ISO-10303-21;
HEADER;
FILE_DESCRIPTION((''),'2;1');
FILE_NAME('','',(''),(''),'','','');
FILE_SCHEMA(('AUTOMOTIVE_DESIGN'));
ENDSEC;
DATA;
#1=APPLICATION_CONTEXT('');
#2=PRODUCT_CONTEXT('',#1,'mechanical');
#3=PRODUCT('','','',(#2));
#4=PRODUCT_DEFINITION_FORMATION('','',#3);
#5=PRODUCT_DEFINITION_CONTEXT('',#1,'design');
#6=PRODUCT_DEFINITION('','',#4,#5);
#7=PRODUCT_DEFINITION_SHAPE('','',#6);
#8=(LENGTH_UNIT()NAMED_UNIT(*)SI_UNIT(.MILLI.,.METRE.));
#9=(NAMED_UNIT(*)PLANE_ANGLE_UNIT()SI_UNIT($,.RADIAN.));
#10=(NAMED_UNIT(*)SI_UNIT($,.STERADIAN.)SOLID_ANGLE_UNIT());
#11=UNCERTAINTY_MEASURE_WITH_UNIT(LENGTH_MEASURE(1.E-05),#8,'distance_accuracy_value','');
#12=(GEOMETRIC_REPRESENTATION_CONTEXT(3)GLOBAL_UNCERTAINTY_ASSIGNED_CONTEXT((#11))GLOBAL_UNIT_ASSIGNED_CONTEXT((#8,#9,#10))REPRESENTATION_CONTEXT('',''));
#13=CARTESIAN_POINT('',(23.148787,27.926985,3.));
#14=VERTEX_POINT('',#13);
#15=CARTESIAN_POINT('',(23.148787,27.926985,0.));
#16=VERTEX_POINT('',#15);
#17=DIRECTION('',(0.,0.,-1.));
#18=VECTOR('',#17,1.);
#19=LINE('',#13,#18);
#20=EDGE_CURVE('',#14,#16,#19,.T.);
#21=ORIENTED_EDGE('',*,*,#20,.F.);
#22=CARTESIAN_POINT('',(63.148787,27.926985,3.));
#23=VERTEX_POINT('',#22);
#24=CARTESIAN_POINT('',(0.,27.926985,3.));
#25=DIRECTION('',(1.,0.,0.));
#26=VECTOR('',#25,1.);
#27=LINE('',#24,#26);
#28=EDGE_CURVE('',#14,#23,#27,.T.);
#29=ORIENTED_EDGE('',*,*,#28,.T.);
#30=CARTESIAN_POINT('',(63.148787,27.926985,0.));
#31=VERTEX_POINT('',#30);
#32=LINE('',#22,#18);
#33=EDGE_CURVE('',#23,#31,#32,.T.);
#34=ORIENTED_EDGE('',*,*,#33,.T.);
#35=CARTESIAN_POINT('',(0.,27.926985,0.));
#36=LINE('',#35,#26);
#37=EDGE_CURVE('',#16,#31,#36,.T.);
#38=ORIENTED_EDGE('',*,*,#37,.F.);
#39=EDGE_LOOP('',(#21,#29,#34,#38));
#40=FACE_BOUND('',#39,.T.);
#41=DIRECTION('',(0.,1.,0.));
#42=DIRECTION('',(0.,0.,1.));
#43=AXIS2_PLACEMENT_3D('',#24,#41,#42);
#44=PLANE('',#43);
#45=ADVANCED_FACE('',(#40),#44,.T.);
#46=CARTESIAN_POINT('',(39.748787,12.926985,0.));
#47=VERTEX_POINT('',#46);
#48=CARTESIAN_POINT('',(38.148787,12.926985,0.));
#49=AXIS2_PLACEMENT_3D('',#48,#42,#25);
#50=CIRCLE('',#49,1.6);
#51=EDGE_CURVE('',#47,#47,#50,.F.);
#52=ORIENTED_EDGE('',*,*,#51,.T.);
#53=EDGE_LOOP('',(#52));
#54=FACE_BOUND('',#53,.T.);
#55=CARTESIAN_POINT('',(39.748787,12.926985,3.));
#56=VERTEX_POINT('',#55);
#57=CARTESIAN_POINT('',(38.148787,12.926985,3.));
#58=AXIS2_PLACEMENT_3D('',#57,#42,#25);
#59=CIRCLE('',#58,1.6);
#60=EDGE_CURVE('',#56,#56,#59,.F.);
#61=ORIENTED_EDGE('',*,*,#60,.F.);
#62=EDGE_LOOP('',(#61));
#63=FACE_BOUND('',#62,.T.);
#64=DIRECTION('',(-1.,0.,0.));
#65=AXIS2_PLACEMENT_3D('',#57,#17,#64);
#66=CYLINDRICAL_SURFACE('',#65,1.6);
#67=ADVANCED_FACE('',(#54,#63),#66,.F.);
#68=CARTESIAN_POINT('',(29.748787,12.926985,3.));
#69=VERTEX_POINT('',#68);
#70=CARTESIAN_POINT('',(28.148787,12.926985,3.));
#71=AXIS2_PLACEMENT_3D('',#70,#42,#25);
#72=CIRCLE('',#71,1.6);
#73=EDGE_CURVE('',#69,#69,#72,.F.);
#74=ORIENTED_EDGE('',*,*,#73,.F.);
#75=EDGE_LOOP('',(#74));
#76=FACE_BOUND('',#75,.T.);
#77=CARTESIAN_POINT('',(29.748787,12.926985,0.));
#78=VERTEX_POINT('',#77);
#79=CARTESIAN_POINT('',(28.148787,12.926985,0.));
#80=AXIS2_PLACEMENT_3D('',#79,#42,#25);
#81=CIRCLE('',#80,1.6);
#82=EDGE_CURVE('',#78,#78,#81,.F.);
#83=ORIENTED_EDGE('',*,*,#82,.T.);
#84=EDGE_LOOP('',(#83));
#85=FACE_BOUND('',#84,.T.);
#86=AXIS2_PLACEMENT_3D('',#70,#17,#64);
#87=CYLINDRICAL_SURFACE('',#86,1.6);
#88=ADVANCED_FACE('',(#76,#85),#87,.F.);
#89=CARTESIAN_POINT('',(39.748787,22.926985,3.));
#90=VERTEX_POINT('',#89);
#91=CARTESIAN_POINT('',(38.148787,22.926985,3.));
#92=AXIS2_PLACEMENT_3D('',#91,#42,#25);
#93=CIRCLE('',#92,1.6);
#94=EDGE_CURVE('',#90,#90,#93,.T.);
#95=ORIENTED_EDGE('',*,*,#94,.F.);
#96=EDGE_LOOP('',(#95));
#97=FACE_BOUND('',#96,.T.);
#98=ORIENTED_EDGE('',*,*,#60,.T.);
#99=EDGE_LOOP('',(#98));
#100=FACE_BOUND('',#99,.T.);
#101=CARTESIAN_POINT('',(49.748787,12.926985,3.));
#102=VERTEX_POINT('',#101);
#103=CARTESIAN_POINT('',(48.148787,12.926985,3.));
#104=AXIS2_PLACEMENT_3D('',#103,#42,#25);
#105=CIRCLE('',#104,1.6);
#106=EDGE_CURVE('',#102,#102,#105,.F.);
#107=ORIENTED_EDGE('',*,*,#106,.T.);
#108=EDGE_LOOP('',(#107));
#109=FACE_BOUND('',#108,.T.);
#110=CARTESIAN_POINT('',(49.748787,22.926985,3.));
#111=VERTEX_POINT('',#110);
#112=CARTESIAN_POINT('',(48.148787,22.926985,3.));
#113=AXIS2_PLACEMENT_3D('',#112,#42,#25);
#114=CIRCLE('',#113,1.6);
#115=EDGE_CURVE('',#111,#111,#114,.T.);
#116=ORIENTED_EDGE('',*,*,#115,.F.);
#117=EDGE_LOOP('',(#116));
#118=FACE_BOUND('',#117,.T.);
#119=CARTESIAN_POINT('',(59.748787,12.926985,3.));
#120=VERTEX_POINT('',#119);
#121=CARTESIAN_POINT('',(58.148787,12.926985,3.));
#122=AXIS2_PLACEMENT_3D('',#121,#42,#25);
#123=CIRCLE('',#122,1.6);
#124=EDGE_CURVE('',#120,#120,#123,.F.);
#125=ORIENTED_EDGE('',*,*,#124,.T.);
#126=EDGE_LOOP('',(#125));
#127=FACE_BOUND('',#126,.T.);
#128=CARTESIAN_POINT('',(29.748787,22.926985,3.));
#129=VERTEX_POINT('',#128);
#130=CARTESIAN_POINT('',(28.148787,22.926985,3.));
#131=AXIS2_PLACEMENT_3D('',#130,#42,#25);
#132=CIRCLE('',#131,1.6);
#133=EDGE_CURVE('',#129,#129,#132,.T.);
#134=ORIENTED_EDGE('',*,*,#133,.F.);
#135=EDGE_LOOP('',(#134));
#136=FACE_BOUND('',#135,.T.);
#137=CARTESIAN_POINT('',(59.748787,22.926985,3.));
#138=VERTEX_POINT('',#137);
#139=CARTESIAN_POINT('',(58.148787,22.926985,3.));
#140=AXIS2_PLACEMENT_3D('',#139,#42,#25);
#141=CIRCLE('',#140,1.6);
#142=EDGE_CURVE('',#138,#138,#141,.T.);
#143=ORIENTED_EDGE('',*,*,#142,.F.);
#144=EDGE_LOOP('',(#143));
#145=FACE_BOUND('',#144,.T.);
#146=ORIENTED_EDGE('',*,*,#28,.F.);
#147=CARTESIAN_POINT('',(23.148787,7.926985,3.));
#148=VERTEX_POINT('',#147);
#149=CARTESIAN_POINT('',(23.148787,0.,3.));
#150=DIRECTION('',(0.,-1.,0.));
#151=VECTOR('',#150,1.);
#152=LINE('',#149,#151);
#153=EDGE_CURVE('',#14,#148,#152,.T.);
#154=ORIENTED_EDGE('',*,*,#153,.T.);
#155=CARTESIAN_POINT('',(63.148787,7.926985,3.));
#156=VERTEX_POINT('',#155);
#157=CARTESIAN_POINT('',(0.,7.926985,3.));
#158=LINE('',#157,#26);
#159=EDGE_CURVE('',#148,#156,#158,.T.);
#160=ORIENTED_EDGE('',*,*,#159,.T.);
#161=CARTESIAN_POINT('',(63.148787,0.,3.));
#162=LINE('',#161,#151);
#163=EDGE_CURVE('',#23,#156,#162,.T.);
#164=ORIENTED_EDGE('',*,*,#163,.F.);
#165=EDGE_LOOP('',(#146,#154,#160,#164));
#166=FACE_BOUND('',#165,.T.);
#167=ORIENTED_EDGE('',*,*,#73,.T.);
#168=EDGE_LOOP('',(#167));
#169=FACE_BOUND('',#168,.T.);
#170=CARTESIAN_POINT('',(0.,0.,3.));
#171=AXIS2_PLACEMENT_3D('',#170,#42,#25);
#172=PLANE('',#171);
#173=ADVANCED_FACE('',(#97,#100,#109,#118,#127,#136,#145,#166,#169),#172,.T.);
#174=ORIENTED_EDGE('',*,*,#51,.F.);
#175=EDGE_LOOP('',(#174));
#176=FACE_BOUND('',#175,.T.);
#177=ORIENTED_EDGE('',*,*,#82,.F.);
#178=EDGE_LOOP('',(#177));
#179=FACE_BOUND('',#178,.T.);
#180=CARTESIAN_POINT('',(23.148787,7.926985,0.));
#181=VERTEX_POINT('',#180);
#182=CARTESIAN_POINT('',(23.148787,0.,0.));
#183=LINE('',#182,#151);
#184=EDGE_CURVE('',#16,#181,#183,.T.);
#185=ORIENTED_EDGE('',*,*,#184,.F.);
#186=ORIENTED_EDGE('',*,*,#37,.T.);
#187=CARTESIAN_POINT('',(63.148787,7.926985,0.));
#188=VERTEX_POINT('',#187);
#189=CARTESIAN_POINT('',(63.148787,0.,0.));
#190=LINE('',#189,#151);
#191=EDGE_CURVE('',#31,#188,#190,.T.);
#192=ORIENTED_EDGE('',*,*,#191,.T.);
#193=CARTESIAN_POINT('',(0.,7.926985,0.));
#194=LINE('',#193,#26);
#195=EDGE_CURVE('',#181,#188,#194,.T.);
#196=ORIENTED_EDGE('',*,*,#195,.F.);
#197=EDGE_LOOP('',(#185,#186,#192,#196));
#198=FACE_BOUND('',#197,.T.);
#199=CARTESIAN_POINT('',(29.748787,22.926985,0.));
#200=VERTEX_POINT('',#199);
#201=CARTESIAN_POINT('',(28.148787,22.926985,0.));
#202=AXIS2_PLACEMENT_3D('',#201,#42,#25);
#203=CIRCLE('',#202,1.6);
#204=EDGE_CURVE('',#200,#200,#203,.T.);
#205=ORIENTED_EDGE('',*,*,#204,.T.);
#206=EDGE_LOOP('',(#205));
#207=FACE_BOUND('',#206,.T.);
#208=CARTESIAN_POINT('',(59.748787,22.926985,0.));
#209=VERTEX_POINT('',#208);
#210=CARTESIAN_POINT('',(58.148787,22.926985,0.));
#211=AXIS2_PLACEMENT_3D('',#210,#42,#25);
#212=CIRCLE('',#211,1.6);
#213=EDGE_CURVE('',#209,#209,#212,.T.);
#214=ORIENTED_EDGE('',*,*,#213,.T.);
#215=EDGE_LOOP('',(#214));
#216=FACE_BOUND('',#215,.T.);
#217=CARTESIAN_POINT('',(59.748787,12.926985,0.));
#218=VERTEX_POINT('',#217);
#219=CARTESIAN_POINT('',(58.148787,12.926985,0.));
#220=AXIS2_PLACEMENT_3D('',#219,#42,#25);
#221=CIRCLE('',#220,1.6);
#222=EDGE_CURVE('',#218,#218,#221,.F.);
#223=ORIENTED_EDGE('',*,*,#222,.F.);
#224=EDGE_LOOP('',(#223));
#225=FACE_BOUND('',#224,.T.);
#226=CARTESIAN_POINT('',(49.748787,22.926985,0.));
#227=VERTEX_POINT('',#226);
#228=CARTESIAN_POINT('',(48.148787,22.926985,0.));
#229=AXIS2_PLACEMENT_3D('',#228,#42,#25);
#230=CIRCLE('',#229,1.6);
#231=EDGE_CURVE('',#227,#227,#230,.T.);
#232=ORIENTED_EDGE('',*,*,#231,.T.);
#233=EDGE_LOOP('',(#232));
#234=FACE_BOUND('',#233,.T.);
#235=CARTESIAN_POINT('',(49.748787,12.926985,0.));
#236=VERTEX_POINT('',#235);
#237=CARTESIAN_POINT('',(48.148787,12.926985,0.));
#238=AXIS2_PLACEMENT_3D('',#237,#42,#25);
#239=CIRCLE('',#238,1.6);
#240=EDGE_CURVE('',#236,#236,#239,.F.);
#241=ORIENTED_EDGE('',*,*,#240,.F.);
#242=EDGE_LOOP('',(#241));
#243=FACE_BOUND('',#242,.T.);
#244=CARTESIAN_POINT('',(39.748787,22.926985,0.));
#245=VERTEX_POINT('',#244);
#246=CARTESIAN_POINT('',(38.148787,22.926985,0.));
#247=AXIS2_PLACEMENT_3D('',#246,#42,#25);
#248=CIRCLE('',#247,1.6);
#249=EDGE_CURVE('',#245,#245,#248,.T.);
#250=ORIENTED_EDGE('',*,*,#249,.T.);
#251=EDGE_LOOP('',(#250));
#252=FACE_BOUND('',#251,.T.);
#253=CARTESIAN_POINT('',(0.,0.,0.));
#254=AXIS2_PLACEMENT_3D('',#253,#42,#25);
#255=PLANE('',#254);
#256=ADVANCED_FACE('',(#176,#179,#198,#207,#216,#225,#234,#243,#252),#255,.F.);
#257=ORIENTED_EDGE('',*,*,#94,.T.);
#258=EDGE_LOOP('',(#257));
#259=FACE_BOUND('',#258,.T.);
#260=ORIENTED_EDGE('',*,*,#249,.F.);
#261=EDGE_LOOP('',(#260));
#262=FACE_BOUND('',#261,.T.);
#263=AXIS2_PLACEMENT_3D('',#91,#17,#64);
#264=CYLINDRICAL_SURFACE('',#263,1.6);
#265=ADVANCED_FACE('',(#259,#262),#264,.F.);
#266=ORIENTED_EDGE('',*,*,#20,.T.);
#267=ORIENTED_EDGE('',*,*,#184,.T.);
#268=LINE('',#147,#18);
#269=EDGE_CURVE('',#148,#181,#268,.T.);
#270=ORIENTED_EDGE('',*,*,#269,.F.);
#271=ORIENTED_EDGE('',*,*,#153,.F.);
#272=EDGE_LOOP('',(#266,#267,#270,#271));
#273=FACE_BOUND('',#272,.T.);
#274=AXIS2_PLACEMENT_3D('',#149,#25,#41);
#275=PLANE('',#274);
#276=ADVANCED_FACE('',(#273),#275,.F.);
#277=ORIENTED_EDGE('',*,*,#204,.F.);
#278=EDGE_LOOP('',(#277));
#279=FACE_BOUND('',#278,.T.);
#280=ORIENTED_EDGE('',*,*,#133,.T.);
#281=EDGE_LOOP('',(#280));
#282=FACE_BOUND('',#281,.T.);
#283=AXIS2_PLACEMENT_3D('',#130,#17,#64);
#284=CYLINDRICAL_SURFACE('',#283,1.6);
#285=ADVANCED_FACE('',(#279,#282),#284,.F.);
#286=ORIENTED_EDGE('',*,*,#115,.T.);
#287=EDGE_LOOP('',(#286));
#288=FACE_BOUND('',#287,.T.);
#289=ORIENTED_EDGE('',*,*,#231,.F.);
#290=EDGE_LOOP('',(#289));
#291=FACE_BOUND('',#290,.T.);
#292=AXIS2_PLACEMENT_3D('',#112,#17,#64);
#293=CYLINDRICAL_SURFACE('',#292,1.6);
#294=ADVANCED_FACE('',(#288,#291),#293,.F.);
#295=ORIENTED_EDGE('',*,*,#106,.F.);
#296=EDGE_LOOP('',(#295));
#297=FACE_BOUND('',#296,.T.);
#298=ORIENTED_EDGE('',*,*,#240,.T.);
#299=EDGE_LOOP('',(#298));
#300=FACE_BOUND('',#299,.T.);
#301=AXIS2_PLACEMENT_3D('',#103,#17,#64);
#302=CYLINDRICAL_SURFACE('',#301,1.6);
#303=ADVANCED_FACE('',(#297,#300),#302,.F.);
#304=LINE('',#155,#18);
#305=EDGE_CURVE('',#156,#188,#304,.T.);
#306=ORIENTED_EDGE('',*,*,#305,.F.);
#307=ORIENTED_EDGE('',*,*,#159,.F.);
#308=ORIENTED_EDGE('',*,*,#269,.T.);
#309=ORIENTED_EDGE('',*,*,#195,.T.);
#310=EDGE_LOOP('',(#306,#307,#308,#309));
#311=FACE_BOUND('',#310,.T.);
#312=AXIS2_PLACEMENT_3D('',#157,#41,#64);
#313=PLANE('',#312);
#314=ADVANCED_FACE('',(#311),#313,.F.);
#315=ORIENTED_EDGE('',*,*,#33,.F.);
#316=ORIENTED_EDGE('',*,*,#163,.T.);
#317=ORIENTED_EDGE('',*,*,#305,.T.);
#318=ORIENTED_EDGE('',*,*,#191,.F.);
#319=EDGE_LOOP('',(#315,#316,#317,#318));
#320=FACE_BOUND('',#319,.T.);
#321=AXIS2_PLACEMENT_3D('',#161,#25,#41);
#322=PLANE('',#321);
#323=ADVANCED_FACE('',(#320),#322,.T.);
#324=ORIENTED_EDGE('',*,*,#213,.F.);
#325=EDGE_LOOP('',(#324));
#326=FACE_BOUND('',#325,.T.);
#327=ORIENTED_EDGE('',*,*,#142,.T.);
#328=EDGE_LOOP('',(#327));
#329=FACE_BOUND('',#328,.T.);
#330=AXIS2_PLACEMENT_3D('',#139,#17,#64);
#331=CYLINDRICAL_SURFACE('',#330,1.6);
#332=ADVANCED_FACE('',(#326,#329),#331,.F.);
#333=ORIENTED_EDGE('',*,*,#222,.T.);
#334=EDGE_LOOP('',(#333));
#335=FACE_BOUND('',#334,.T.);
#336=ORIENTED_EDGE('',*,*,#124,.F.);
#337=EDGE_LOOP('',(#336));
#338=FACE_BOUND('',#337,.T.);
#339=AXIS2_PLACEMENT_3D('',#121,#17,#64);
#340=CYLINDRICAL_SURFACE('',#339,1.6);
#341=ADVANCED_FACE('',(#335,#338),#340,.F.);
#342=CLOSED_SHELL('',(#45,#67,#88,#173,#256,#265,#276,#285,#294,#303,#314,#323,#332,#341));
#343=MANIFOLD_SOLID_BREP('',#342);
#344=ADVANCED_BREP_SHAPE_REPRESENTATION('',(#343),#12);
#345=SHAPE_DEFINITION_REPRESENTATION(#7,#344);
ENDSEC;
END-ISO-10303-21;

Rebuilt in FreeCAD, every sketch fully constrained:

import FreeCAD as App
import Part
import Sketcher
Q = App.Units.Quantity


def add_polygon(sketch, points):
    """Adds a closed chain of lines whose ends are joined by coincident constraints."""
    first, n = sketch.GeometryCount, len(points)
    for a, b in zip(points, points[1:] + points[:1]):
        sketch.addGeometry(Part.LineSegment(App.Vector(*a, 0), App.Vector(*b, 0)), False)
    for i in range(n):
        sketch.addConstraint(Sketcher.Constraint("Coincident", first + i, 2, first + (i + 1) % n, 1))

doc = App.newDocument("Part")
params = doc.addObject("Spreadsheet::Sheet", "Params")
for row, (alias, value) in enumerate([
    ("sketch1_diameter", "3.2 mm"),
    ("sketch1_width", "40 mm"),
    ("sketch1_height", "20 mm"),
    ("pad1_length", "3 mm"),
], start=1):
    params.set(f"A{row}", alias)
    params.set(f"B{row}", "=" + value)
    params.setAlias(f"B{row}", alias)

body = doc.addObject("PartDesign::Body", "Body")

sketch1 = body.newObject("Sketcher::SketchObject", "Sketch")
sketch1.AttachmentSupport = (doc.getObject("XY_Plane"), [""])
sketch1.MapMode = "FlatFace"
add_polygon(sketch1, [(23.1, 27.9), (23.1, 7.9), (63.1, 7.9), (63.1, 27.9)])
sketch1.addGeometry(Part.Circle(App.Vector(28.1, 12.9, 0), App.Vector(0, 0, 1), 1.6), False)
sketch1.addGeometry(Part.Circle(App.Vector(38.1, 12.9, 0), App.Vector(0, 0, 1), 1.6), False)
sketch1.addGeometry(Part.Circle(App.Vector(48.1, 12.9, 0), App.Vector(0, 0, 1), 1.6), False)
sketch1.addGeometry(Part.Circle(App.Vector(58.1, 12.9, 0), App.Vector(0, 0, 1), 1.6), False)
sketch1.addGeometry(Part.Circle(App.Vector(28.1, 22.9, 0), App.Vector(0, 0, 1), 1.6), False)
sketch1.addGeometry(Part.Circle(App.Vector(38.1, 22.9, 0), App.Vector(0, 0, 1), 1.6), False)
sketch1.addGeometry(Part.Circle(App.Vector(48.1, 22.9, 0), App.Vector(0, 0, 1), 1.6), False)
sketch1.addGeometry(Part.Circle(App.Vector(58.1, 22.9, 0), App.Vector(0, 0, 1), 1.6), False)
sketch1.addConstraint(Sketcher.Constraint("Vertical", 0))
sketch1.addConstraint(Sketcher.Constraint("Horizontal", 1))
sketch1.addConstraint(Sketcher.Constraint("Vertical", 2))
sketch1.addConstraint(Sketcher.Constraint("Horizontal", 3))
sketch1.addConstraint(Sketcher.Constraint("Equal", 4, 5))
sketch1.addConstraint(Sketcher.Constraint("Equal", 5, 6))
sketch1.addConstraint(Sketcher.Constraint("Equal", 6, 7))
sketch1.addConstraint(Sketcher.Constraint("Equal", 7, 8))
sketch1.addConstraint(Sketcher.Constraint("Equal", 8, 9))
sketch1.addConstraint(Sketcher.Constraint("Equal", 9, 10))
sketch1.addConstraint(Sketcher.Constraint("Equal", 10, 11))
sketch1.addConstraint(Sketcher.Constraint("Horizontal", 4, 3, 5, 3))
sketch1.addConstraint(Sketcher.Constraint("Horizontal", 5, 3, 6, 3))
sketch1.addConstraint(Sketcher.Constraint("Horizontal", 6, 3, 7, 3))
sketch1.addConstraint(Sketcher.Constraint("Horizontal", 8, 3, 9, 3))
sketch1.addConstraint(Sketcher.Constraint("Horizontal", 9, 3, 10, 3))
sketch1.addConstraint(Sketcher.Constraint("Horizontal", 10, 3, 11, 3))
sketch1.addConstraint(Sketcher.Constraint("Vertical", 4, 3, 8, 3))
sketch1.addConstraint(Sketcher.Constraint("Vertical", 5, 3, 9, 3))
sketch1.addConstraint(Sketcher.Constraint("Vertical", 6, 3, 10, 3))
sketch1.addConstraint(Sketcher.Constraint("Vertical", 7, 3, 11, 3))
sketch1.addConstraint(Sketcher.Constraint("Diameter", 4, Q("3.2 mm")))
sketch1.addConstraint(Sketcher.Constraint("DistanceX", 1, 1, 1, 2, Q("40 mm")))
sketch1.addConstraint(Sketcher.Constraint("DistanceY", 0, 2, 0, 1, Q("20 mm")))
sketch1.addConstraint(Sketcher.Constraint("DistanceX", 4, 3, 5, 3, Q("10 mm")))
sketch1.addConstraint(Sketcher.Constraint("DistanceX", 5, 3, 6, 3, Q("10 mm")))
sketch1.addConstraint(Sketcher.Constraint("DistanceX", 6, 3, 7, 3, Q("10 mm")))
sketch1.addConstraint(Sketcher.Constraint("DistanceY", 4, 3, 8, 3, Q("10 mm")))
sketch1.addConstraint(Sketcher.Constraint("DistanceX", 0, 2, 4, 3, Q("5 mm")))
sketch1.addConstraint(Sketcher.Constraint("DistanceY", 0, 2, 4, 3, Q("5 mm")))
sketch1.addConstraint(Sketcher.Constraint("DistanceX", -1, 1, 4, 3, Q("28.148787 mm")))
sketch1.addConstraint(Sketcher.Constraint("DistanceY", -1, 1, 4, 3, Q("12.926985 mm")))
sketch1.setExpression("Constraints[25]", "Params.sketch1_diameter")
sketch1.setExpression("Constraints[26]", "Params.sketch1_width")
sketch1.setExpression("Constraints[27]", "Params.sketch1_height")
pad1 = body.newObject("PartDesign::Pad", "Pad")
pad1.Profile = sketch1
pad1.setExpression("Length", "Params.pad1_length")

doc.recompute()
